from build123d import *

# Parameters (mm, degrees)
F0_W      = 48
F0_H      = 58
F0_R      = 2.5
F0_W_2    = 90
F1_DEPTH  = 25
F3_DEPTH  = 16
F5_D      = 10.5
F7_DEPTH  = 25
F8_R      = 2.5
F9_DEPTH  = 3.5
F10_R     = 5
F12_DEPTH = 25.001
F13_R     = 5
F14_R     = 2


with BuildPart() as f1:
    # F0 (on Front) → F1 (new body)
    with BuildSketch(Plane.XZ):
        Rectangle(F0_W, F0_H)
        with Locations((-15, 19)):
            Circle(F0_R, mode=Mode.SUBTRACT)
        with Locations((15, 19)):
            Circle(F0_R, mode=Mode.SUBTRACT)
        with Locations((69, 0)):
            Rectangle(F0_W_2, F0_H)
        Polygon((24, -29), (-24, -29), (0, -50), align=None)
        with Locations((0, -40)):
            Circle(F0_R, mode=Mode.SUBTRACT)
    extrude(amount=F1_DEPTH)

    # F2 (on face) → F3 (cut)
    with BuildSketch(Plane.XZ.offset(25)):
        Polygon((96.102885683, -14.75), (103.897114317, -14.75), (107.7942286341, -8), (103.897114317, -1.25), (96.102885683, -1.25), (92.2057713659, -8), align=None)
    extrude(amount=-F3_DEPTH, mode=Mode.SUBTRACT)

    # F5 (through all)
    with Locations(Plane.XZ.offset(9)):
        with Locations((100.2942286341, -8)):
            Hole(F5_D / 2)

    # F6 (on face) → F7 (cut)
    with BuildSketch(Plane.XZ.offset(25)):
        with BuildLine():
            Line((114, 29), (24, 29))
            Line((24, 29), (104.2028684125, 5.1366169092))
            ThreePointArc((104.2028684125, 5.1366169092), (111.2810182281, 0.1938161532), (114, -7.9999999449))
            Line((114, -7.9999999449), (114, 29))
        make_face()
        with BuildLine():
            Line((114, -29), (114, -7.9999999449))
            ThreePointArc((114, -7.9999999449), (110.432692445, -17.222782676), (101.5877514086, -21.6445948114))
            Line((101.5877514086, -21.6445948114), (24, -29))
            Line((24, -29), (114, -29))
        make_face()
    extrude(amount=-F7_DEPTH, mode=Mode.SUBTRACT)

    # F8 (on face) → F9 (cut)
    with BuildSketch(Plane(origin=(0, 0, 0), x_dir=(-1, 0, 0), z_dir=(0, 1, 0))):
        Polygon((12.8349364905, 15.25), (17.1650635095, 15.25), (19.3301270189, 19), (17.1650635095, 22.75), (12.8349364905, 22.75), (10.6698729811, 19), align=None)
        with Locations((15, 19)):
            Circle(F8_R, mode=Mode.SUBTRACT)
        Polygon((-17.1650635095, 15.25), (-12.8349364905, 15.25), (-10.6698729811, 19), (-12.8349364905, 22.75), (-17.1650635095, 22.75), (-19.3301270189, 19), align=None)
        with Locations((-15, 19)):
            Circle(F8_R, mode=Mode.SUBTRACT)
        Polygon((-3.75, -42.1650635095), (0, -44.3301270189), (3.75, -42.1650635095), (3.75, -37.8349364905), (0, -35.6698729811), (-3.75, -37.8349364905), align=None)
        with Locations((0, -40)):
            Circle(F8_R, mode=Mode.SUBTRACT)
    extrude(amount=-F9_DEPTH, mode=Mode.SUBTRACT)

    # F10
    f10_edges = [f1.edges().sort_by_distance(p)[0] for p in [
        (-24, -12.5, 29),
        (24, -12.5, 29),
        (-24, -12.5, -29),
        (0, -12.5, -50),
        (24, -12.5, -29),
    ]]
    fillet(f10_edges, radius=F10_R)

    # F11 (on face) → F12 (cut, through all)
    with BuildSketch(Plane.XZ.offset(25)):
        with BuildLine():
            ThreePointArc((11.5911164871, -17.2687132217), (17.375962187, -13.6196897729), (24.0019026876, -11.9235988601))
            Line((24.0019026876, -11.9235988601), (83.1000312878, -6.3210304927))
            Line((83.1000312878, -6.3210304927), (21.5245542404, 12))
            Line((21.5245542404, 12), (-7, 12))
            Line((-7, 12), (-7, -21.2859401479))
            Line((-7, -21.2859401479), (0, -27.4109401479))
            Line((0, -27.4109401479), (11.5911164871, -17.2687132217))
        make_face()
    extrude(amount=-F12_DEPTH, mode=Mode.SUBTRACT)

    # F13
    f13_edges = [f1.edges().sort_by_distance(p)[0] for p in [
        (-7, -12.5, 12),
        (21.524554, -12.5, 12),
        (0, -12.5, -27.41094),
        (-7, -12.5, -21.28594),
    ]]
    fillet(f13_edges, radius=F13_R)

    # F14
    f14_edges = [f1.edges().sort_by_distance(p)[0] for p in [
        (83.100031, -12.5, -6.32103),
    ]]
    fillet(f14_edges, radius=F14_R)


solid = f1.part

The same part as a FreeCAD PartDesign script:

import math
import FreeCAD as App
import Part
import Sketcher
from FreeCAD import Vector
Q = App.Units.Quantity


def edges_at(feature, points):
    """Names of the edges that pass closest to the given points."""
    edges = feature.Shape.Edges
    near = lambda p: min(range(len(edges)), key=lambda i: edges[i].distToShape(Part.Vertex(*p))[0])
    return sorted({f"Edge{near(p) + 1}" for p in points})


def add_polygon(sketch, points):
    """Adds a closed chain of lines whose ends are joined by coincident constraints."""
    first, n = sketch.GeometryCount, len(points)
    for a, b in zip(points, points[1:] + points[:1]):
        sketch.addGeometry(Part.LineSegment(App.Vector(*a, 0), App.Vector(*b, 0)), False)
    for i in range(n):
        sketch.addConstraint(Sketcher.Constraint("Coincident", first + i, 2, first + (i + 1) % n, 1))

doc = App.newDocument("Part")
params = doc.addObject("Spreadsheet::Sheet", "Params")
for row, (alias, value) in enumerate([
    ("sketch1_diameter", "5 mm"),
    ("sketch1_width", "90 mm"),
    ("sketch1_width2", "138 mm"),
    ("sketch1_height", "58 mm"),
    ("pad1_length", "25 mm"),
    ("pocket1_length", "16 mm"),
    ("sketch3_diameter", "10.5 mm"),
    ("hole_diameter", "10.5 mm"),
    ("sketch4_width", "90 mm"),
    ("sketch4_height", "37 mm"),
    ("sketch4_height2", "21 mm"),
    ("pocket2_length", "25 mm"),
    ("sketch5_diameter", "5 mm"),
    ("pocket3_length", "3.5 mm"),
    ("fillet_radius", "5 mm"),
    ("sketch6_radius", "22 mm"),
    ("fillet2_radius", "5 mm"),
    ("fillet3_radius", "2 mm"),
], start=1):
    params.set(f"A{row}", alias)
    params.set(f"B{row}", "=" + value)
    params.setAlias(f"B{row}", alias)

body = doc.addObject("PartDesign::Body", "Body")

# Sketch on XZ plane
sketch1 = body.newObject("Sketcher::SketchObject", "Sketch")
sketch1.AttachmentSupport = (doc.getObject("XZ_Plane"), [""])
sketch1.MapMode = "FlatFace"
add_polygon(sketch1, [(-24, 29), (-24, -29), (0, -50), (24, -29), (114, -29), (114, 29)])  # lines 0-5
sketch1.addGeometry(Part.Circle(Vector(0, -40, 0), Vector(0, 0, 1), 2.5), False)  # 6
sketch1.addGeometry(Part.Circle(Vector(-15, 19, 0), Vector(0, 0, 1), 2.5), False)  # 7
sketch1.addGeometry(Part.Circle(Vector(15, 19, 0), Vector(0, 0, 1), 2.5), False)  # 8
sketch1.addConstraint([
    Sketcher.Constraint("Vertical", 0),
    Sketcher.Constraint("Horizontal", 3),
    Sketcher.Constraint("Vertical", 4),
    Sketcher.Constraint("Horizontal", 5),
    Sketcher.Constraint("Equal", 6, 7),
    Sketcher.Constraint("Equal", 7, 8),
    Sketcher.Constraint("Symmetric", 2, 2, 5, 2, -1, 1),
    Sketcher.Constraint("Symmetric", 7, 3, 8, 3, -2),
    Sketcher.Constraint("PointOnObject", 6, 3, -2),
    Sketcher.Constraint("PointOnObject", 1, 2, -2),
    Sketcher.Constraint("Horizontal", 0, 2, 2, 2),
    Sketcher.Constraint("Diameter", 6, Q("5 mm")),
    Sketcher.Constraint("DistanceX", 3, 1, 3, 2, Q("90 mm")),
    Sketcher.Constraint("DistanceX", 5, 2, 5, 1, Q("138 mm")),
    Sketcher.Constraint("DistanceY", 0, 2, 0, 1, Q("58 mm")),
    Sketcher.Constraint("DistanceY", 6, 3, -1, 1, Q("40 mm")),
    Sketcher.Constraint("DistanceX", 7, 3, -1, 1, Q("15 mm")),
    Sketcher.Constraint("DistanceY", -1, 1, 7, 3, Q("19 mm")),
    Sketcher.Constraint("DistanceY", 1, 2, -1, 1, Q("50 mm")),
])
sketch1.setExpression("Constraints[17]", "Params.sketch1_diameter")
sketch1.setExpression("Constraints[18]", "Params.sketch1_width")
sketch1.setExpression("Constraints[19]", "Params.sketch1_width2")
sketch1.setExpression("Constraints[20]", "Params.sketch1_height")
pad1 = body.newObject("PartDesign::Pad", "Pad")
pad1.Profile = sketch1
pad1.setExpression("Length", "Params.pad1_length")

# Sketch on XZ plane
sketch2 = body.newObject("Sketcher::SketchObject", "Sketch001")
sketch2.AttachmentSupport = (doc.getObject("XZ_Plane"), [""])
sketch2.MapMode = "FlatFace"
sketch2.AttachmentOffset = App.Placement(Vector(0, 0, 25), App.Rotation())
add_polygon(sketch2, [(96, -15), (104, -15), (108, -8), (104, -1), (96, -1), (92, -8)])  # lines 0-5
sketch2.addConstraint([
    Sketcher.Constraint("Horizontal", 0),
    Sketcher.Constraint("Horizontal", 3),
    Sketcher.Constraint("Parallel", 1, 4),
    Sketcher.Constraint("Parallel", 2, 5),
    Sketcher.Constraint("Horizontal", 1, 2, 4, 2),
    Sketcher.Constraint("Vertical", 0, 2, 2, 2),
    Sketcher.Constraint("Vertical", 3, 2, 5, 2),
    Sketcher.Constraint("Angle", 1, Q("60 deg")),
    Sketcher.Constraint("DistanceY", 1, 2, -1, 1, Q("8 mm")),
    Sketcher.Constraint("DistanceY", 0, 2, 2, 2, Q("13.5 mm")),
    Sketcher.Constraint("DistanceX", 0, 1, 0, 2, Q("7.794229 mm")),
    Sketcher.Constraint("DistanceX", -1, 1, 1, 2, Q("107.794229 mm")),
])
pocket1 = body.newObject("PartDesign::Pocket", "Pocket")
pocket1.Profile = sketch2
pocket1.setExpression("Length", "Params.pocket1_length")

# Sketch on XZ plane
sketch3 = body.newObject("Sketcher::SketchObject", "Sketch002")
sketch3.AttachmentSupport = (doc.getObject("XZ_Plane"), [""])
sketch3.MapMode = "FlatFace"
sketch3.AttachmentOffset = App.Placement(Vector(0, 0, 9), App.Rotation())
sketch3.addGeometry(Part.Circle(Vector(100, -8, 0), Vector(0, 0, 1), 5), False)
sketch3.addConstraint([
    Sketcher.Constraint("Diameter", 0, Q("10.5 mm")),
    Sketcher.Constraint("DistanceY", 0, 3, -1, 1, Q("8 mm")),
    Sketcher.Constraint("DistanceX", -1, 1, 0, 3, Q("100.294229 mm")),
])
sketch3.setExpression("Constraints[0]", "Params.sketch3_diameter")
doc.recompute()
hole = body.newObject("PartDesign::Hole", "Hole")
hole.Profile = sketch3
hole.ThreadType = "None"
hole.setExpression("Diameter", "Params.hole_diameter")
hole.DepthType = "ThroughAll"

# Sketch on XZ plane
sketch4 = body.newObject("Sketcher::SketchObject", "Sketch003")
sketch4.AttachmentSupport = (doc.getObject("XZ_Plane"), [""])
sketch4.MapMode = "FlatFace"
sketch4.AttachmentOffset = App.Placement(Vector(0, 0, 25), App.Rotation())
sketch4.addGeometry([
    Part.LineSegment(Vector(114, 29, 0), Vector(24, 29, 0)),  # 0
    Part.LineSegment(Vector(24, 29, 0), Vector(104, 5, 0)),  # 1
    Part.ArcOfCircle(Part.Circle(Vector(100, -8, 0), Vector(0, 0, 1), 14), math.radians(0), math.radians(73)),  # 2
    Part.LineSegment(Vector(114, -8, 0), Vector(114, 29, 0)),  # 3
    Part.LineSegment(Vector(114, -29, 0), Vector(114, -8, 0)),  # 4
    Part.ArcOfCircle(Part.Circle(Vector(100, -8, 0), Vector(0, 0, 1), 14), math.radians(-85), math.radians(0)),  # 5
    Part.LineSegment(Vector(102, -22, 0), Vector(24, -29, 0)),  # 6
    Part.LineSegment(Vector(24, -29, 0), Vector(114, -29, 0)),  # 7
], False)
sketch4.addConstraint([
    Sketcher.Constraint("Coincident", 0, 2, 1, 1),
    Sketcher.Constraint("Tangent", 1, 2, 2, 2),
    Sketcher.Constraint("Tangent", 2, 1, 3, 1),
    Sketcher.Constraint("Coincident", 3, 2, 0, 1),
    Sketcher.Constraint("Tangent", 4, 2, 5, 2),
    Sketcher.Constraint("Tangent", 5, 1, 6, 1),
    Sketcher.Constraint("Coincident", 6, 2, 7, 1),
    Sketcher.Constraint("Coincident", 7, 2, 4, 1),
    Sketcher.Constraint("Horizontal", 0),
    Sketcher.Constraint("Vertical", 3),
    Sketcher.Constraint("Vertical", 4),
    Sketcher.Constraint("Horizontal", 7),
    Sketcher.Constraint("Coincident", 5, 3, 2, 3),
    Sketcher.Constraint("Equal", 2, 5),
    Sketcher.Constraint("Symmetric", 0, 2, 6, 2, -1),
    Sketcher.Constraint("DistanceX", 0, 2, 0, 1, Q("90 mm")),
    Sketcher.Constraint("DistanceY", 3, 1, 3, 2, Q("37 mm")),
    Sketcher.Constraint("DistanceY", 4, 1, 4, 2, Q("21 mm")),
    Sketcher.Constraint("DistanceX", -1, 1, 0, 2, Q("24 mm")),
    Sketcher.Constraint("Radius", 2, Q("13.705771 mm")),
])
sketch4.setExpression("Constraints[15]", "Params.sketch4_width")
sketch4.setExpression("Constraints[16]", "Params.sketch4_height")
sketch4.setExpression("Constraints[17]", "Params.sketch4_height2")
pocket2 = body.newObject("PartDesign::Pocket", "Pocket001")
pocket2.Profile = sketch4
pocket2.setExpression("Length", "Params.pocket2_length")

# Sketch on XZ plane
sketch5 = body.newObject("Sketcher::SketchObject", "Sketch004")
sketch5.AttachmentSupport = (doc.getObject("XZ_Plane"), [""])
sketch5.MapMode = "FlatFace"
add_polygon(sketch5, [(-12.8, 15.2), (-17.2, 15.2), (-19.3, 19), (-17.2, 22.8), (-12.8, 22.8), (-10.7, 19)])  # lines 0-5
sketch5.addGeometry(Part.Circle(Vector(-15, 19, 0), Vector(0, 0, 1), 2.5), False)  # 6
add_polygon(sketch5, [(17.2, 15.2), (12.8, 15.2), (10.7, 19), (12.8, 22.8), (17.2, 22.8), (19.3, 19)])  # lines 7-12
sketch5.addGeometry(Part.Circle(Vector(15, 19, 0), Vector(0, 0, 1), 2.5), False)  # 13
add_polygon(sketch5, [(3.8, -42.2), (0, -44.3), (-3.8, -42.2), (-3.8, -37.8), (0, -35.7), (3.8, -37.8)])  # lines 14-19
sketch5.addGeometry(Part.Circle(Vector(0, -40, 0), Vector(0, 0, 1), 2.5), False)  # 20
sketch5.addConstraint([
    Sketcher.Constraint("Horizontal", 0),
    Sketcher.Constraint("Horizontal", 3),
    Sketcher.Constraint("Horizontal", 7),
    Sketcher.Constraint("Horizontal", 10),
    Sketcher.Constraint("Vertical", 16),
    Sketcher.Constraint("Vertical", 19),
    Sketcher.Constraint("Equal", 6, 13),
    Sketcher.Constraint("Equal", 13, 20),
    Sketcher.Constraint("Symmetric", 6, 3, 13, 3, -2),
    Sketcher.Constraint("Symmetric", 5, 2, 7, 2, -2),
    Sketcher.Constraint("Symmetric", 4, 2, 8, 2, -2),
    Sketcher.Constraint("Symmetric", 3, 2, 9, 2, -2),
    Sketcher.Constraint("Symmetric", 1, 2, 11, 2, -2),
    Sketcher.Constraint("Symmetric", 16, 2, 18, 2, -2),
    Sketcher.Constraint("PointOnObject", 20, 3, -2),
    Sketcher.Constraint("PointOnObject", 14, 2, -2),
    Sketcher.Constraint("PointOnObject", 17, 2, -2),
    Sketcher.Constraint("Parallel", 1, 4),
    Sketcher.Constraint("Parallel", 2, 5),
    Sketcher.Constraint("Parallel", 4, 8),
    Sketcher.Constraint("Parallel", 8, 11),
    Sketcher.Constraint("Parallel", 9, 12),
    Sketcher.Constraint("Perpendicular", 11, 14),
    Sketcher.Constraint("Perpendicular", 12, 15),
    Sketcher.Constraint("Parallel", 14, 17),
    Sketcher.Constraint("Horizontal", 13, 3, 1, 2),
    Sketcher.Constraint("Horizontal", 1, 2, 4, 2),
    Sketcher.Constraint("Vertical", 0, 2, 2, 2),
    Sketcher.Constraint("Equal", 10, 16),
    Sketcher.Constraint("Equal", 12, 14),
    Sketcher.Constraint("Diameter", 6, Q("5 mm")),
    Sketcher.Constraint("Angle", 1, Q("120 deg")),
    Sketcher.Constraint("DistanceX", 6, 3, -1, 1, Q("15 mm")),
    Sketcher.Constraint("DistanceY", -1, 1, 6, 3, Q("19 mm")),
    Sketcher.Constraint("DistanceY", 20, 3, -1, 1, Q("40 mm")),
    Sketcher.Constraint("DistanceY", 0, 2, 2, 2, Q("7.5 mm")),
    Sketcher.Constraint("DistanceX", 0, 2, 0, 1, Q("4.330127 mm")),
    Sketcher.Constraint("DistanceX", 4, 2, 7, 2, Q("23.504809 mm")),
    Sketcher.Constraint("DistanceY", 14, 2, -1, 1, Q("44.330127 mm")),
])
sketch5.setExpression("Constraints[48]", "Params.sketch5_diameter")
pocket3 = body.newObject("PartDesign::Pocket", "Pocket002")
pocket3.Profile = sketch5
pocket3.setExpression("Length", "Params.pocket3_length")
pocket3.Reversed = True
doc.recompute()

fillet = body.newObject("PartDesign::Fillet", "Fillet")
fillet.Base = (pocket3, edges_at(pocket3, [
    (-24, -12.5, 29),
    (24, -12.5, 29),
    (-24, -12.5, -29),
    (0, -12.5, -50),
    (24, -12.5, -29),
]))
fillet.setExpression("Radius", "Params.fillet_radius")

# Sketch on XZ plane
sketch6 = body.newObject("Sketcher::SketchObject", "Sketch005")
sketch6.AttachmentSupport = (doc.getObject("XZ_Plane"), [""])
sketch6.MapMode = "FlatFace"
sketch6.AttachmentOffset = App.Placement(Vector(0, 0, 25), App.Rotation())
sketch6.addGeometry([
    Part.ArcOfCircle(Part.Circle(Vector(26, -34, 0), Vector(0, 0, 1), 22), math.radians(95), math.radians(131)),  # 0
    Part.LineSegment(Vector(24, -12, 0), Vector(83, -6, 0)),  # 1
    Part.LineSegment(Vector(83, -6, 0), Vector(22, 12, 0)),  # 2
    Part.LineSegment(Vector(22, 12, 0), Vector(-7, 12, 0)),  # 3
    Part.LineSegment(Vector(-7, 12, 0), Vector(-7, -21, 0)),  # 4
    Part.LineSegment(Vector(-7, -21, 0), Vector(0, -27, 0)),  # 5
    Part.LineSegment(Vector(0, -27, 0), Vector(12, -17, 0)),  # 6
], False)
sketch6.addConstraint([
    Sketcher.Constraint("Tangent", 0, 1, 1, 1),
    Sketcher.Constraint("Coincident", 1, 2, 2, 1),
    Sketcher.Constraint("Coincident", 2, 2, 3, 1),
    Sketcher.Constraint("Coincident", 3, 2, 4, 1),
    Sketcher.Constraint("Coincident", 4, 2, 5, 1),
    Sketcher.Constraint("Coincident", 5, 2, 6, 1),
    Sketcher.Constraint("Tangent", 6, 2, 0, 2),
    Sketcher.Constraint("Horizontal", 3),
    Sketcher.Constraint("Vertical", 4),
    Sketcher.Constraint("PointOnObject", 5, 2, -2),
    Sketcher.Constraint("Radius", 0, Q("22 mm")),
    Sketcher.Constraint("DistanceY", -1, 1, 2, 2, Q("12 mm")),
    Sketcher.Constraint("DistanceX", 3, 2, -1, 1, Q("7 mm")),
    Sketcher.Constraint("DistanceY", 5, 2, 4, 2, Q("6.125 mm")),
    Sketcher.Constraint("Distance", 1, Q("59.363099 mm")),
    Sketcher.Constraint("DistanceY", 4, 2, 4, 1, Q("33.28594 mm")),
    Sketcher.Constraint("DistanceY", 0, 3, -1, 1, Q("33.825401 mm")),
    Sketcher.Constraint("DistanceY", 0, 1, -1, 1, Q("11.923599 mm")),
    Sketcher.Constraint("DistanceX", 6, 2, 0, 3, Q("14.487101 mm")),
    Sketcher.Constraint("DistanceX", 3, 2, 3, 1, Q("28.524554 mm")),
])
sketch6.setExpression("Constraints[10]", "Params.sketch6_radius")
pocket4 = body.newObject("PartDesign::Pocket", "Pocket003")
pocket4.Profile = sketch6
pocket4.Type = "ThroughAll"
doc.recompute()

fillet2 = body.newObject("PartDesign::Fillet", "Fillet001")
fillet2.Base = (pocket4, edges_at(pocket4, [
    (-7, -12.5, 12),
    (21.525, -12.5, 12),
    (0, -12.5, -27.411),
    (-7, -12.5, -21.286),
]))
fillet2.setExpression("Radius", "Params.fillet2_radius")
doc.recompute()

fillet3 = body.newObject("PartDesign::Fillet", "Fillet002")
fillet3.Base = (fillet2, edges_at(fillet2, [(83.1, -12.5, -6.321)]))
fillet3.setExpression("Radius", "Params.fillet3_radius")

doc.recompute()
